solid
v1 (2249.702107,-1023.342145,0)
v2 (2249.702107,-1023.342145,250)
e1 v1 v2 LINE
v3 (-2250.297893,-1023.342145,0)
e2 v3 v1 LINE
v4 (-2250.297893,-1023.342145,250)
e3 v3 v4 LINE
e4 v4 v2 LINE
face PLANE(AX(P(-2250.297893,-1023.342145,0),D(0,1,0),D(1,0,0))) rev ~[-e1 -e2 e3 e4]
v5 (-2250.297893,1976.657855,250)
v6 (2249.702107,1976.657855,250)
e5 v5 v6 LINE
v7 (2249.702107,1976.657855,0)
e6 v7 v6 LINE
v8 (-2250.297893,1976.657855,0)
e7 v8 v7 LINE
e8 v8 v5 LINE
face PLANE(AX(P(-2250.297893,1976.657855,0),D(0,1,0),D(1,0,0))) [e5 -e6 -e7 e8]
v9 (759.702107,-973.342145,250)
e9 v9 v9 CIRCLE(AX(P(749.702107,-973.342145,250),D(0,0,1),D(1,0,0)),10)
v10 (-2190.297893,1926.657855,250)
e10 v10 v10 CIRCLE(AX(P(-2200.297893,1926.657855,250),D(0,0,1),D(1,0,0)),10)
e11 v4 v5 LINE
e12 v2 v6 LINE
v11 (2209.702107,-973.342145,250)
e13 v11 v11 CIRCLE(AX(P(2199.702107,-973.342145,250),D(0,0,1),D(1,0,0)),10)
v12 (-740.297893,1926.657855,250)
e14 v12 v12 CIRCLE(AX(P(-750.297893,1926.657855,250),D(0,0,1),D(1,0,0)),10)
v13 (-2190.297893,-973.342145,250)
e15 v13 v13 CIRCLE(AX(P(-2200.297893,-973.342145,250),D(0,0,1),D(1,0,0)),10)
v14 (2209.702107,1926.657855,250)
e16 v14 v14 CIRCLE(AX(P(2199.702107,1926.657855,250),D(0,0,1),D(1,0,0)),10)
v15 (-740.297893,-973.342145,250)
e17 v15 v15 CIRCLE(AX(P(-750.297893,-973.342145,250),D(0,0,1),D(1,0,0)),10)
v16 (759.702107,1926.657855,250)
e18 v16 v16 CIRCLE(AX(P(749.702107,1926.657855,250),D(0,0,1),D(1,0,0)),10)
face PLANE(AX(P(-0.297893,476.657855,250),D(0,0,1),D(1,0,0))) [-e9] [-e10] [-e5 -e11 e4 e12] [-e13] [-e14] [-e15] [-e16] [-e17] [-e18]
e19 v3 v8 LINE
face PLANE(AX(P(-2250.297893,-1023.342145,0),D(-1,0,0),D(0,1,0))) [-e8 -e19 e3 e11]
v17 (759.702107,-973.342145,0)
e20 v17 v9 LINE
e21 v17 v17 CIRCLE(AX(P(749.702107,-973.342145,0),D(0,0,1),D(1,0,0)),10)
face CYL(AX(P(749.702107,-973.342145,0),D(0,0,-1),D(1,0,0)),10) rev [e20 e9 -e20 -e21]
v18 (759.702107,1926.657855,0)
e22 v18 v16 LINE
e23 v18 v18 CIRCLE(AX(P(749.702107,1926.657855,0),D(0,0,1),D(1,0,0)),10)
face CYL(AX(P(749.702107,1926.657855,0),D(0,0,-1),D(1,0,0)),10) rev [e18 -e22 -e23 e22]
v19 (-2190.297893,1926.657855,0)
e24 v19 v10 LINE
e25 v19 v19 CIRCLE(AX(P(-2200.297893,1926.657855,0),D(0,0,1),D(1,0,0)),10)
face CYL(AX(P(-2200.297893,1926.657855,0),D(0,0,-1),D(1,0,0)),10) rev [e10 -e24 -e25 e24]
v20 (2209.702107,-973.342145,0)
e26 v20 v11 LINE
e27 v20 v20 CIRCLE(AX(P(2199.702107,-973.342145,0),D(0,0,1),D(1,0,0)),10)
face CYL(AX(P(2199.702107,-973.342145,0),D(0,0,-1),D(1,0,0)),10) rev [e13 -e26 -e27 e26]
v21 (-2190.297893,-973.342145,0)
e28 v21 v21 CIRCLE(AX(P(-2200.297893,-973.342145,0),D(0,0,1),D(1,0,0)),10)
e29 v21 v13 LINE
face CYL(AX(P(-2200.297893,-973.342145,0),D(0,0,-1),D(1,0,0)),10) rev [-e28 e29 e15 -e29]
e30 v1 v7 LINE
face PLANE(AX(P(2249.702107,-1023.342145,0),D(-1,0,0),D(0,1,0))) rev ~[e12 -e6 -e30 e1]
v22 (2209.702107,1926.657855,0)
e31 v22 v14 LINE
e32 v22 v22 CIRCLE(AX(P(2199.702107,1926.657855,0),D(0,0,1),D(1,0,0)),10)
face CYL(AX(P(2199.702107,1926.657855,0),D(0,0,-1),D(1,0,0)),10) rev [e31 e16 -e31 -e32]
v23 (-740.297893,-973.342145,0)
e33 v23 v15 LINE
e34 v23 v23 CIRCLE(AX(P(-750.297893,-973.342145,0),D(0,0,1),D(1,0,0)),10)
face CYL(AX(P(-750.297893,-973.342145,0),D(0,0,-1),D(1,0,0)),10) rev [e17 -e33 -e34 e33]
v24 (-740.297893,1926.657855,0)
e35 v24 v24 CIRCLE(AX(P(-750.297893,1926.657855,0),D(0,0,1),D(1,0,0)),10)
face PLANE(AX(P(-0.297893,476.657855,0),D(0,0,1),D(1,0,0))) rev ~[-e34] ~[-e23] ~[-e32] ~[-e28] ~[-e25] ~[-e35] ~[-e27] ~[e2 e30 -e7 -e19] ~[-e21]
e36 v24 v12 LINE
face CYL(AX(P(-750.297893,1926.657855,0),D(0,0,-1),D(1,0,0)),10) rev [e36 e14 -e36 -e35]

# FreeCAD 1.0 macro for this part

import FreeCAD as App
import Part
import Sketcher

V = App.Vector
Q = App.Units.Quantity


def add_polygon(sketch, points):
    """Adds a closed chain of lines whose ends are joined by coincident constraints."""
    first, n = sketch.GeometryCount, len(points)
    for a, b in zip(points, points[1:] + points[:1]):
        sketch.addGeometry(Part.LineSegment(App.Vector(*a, 0), App.Vector(*b, 0)), False)
    for i in range(n):
        sketch.addConstraint(Sketcher.Constraint("Coincident", first + i, 2, first + (i + 1) % n, 1))

doc = App.newDocument("Part")
body = doc.addObject("PartDesign::Body", "Body")

sketch1 = doc.addObject("Sketcher::SketchObject", "Sketch")
body.addObject(sketch1)
sketch1.AttachmentSupport = (doc.XY_Plane, [""])
sketch1.MapMode = "FlatFace"
add_polygon(sketch1, [(-2250, 1977), (-2250, -1023), (2250, -1023), (2250, 1977)])
sketch1.addGeometry(Part.Circle(V(-2200, -973, 0), V(0, 0, 1), 10), False)
sketch1.addGeometry(Part.Circle(V(-750, -973, 0), V(0, 0, 1), 10), False)
sketch1.addGeometry(Part.Circle(V(750, -973, 0), V(0, 0, 1), 10), False)
sketch1.addGeometry(Part.Circle(V(2200, -973, 0), V(0, 0, 1), 10), False)
sketch1.addGeometry(Part.Circle(V(-2200, 1927, 0), V(0, 0, 1), 10), False)
sketch1.addGeometry(Part.Circle(V(-750, 1927, 0), V(0, 0, 1), 10), False)
sketch1.addGeometry(Part.Circle(V(750, 1927, 0), V(0, 0, 1), 10), False)
sketch1.addGeometry(Part.Circle(V(2200, 1927, 0), V(0, 0, 1), 10), False)
sketch1.addConstraint(Sketcher.Constraint("Vertical", 0))
sketch1.addConstraint(Sketcher.Constraint("Horizontal", 1))
sketch1.addConstraint(Sketcher.Constraint("Vertical", 2))
sketch1.addConstraint(Sketcher.Constraint("Horizontal", 3))
sketch1.addConstraint(Sketcher.Constraint("Equal", 4, 5))
sketch1.addConstraint(Sketcher.Constraint("Equal", 5, 6))
sketch1.addConstraint(Sketcher.Constraint("Equal", 6, 7))
sketch1.addConstraint(Sketcher.Constraint("Equal", 7, 8))
sketch1.addConstraint(Sketcher.Constraint("Equal", 8, 9))
sketch1.addConstraint(Sketcher.Constraint("Equal", 9, 10))
sketch1.addConstraint(Sketcher.Constraint("Equal", 10, 11))
sketch1.addConstraint(Sketcher.Constraint("Horizontal", 4, 3, 5, 3))
sketch1.addConstraint(Sketcher.Constraint("Horizontal", 5, 3, 6, 3))
sketch1.addConstraint(Sketcher.Constraint("Horizontal", 6, 3, 7, 3))
sketch1.addConstraint(Sketcher.Constraint("Horizontal", 8, 3, 9, 3))
sketch1.addConstraint(Sketcher.Constraint("Horizontal", 9, 3, 10, 3))
sketch1.addConstraint(Sketcher.Constraint("Horizontal", 10, 3, 11, 3))
sketch1.addConstraint(Sketcher.Constraint("Vertical", 4, 3, 8, 3))
sketch1.addConstraint(Sketcher.Constraint("Vertical", 5, 3, 9, 3))
sketch1.addConstraint(Sketcher.Constraint("Vertical", 6, 3, 10, 3))
sketch1.addConstraint(Sketcher.Constraint("Vertical", 7, 3, 11, 3))
sketch1.addConstraint(Sketcher.Constraint("Diameter", 4, Q("20 mm")))
sketch1.addConstraint(Sketcher.Constraint("DistanceX", 1, 1, 1, 2, Q("4500 mm")))
sketch1.addConstraint(Sketcher.Constraint("DistanceY", 0, 2, 0, 1, Q("3000 mm")))
sketch1.addConstraint(Sketcher.Constraint("DistanceX", 4, 3, 5, 3, Q("1450 mm")))
sketch1.addConstraint(Sketcher.Constraint("DistanceX", 5, 3, 6, 3, Q("1500 mm")))
sketch1.addConstraint(Sketcher.Constraint("DistanceX", 6, 3, 7, 3, Q("1450 mm")))
sketch1.addConstraint(Sketcher.Constraint("DistanceY", 4, 3, 8, 3, Q("2900 mm")))
sketch1.addConstraint(Sketcher.Constraint("DistanceX", 0, 2, 4, 3, Q("50 mm")))
sketch1.addConstraint(Sketcher.Constraint("DistanceY", 0, 2, 4, 3, Q("50 mm")))
sketch1.addConstraint(Sketcher.Constraint("DistanceX", 4, 3, -1, 1, Q("2200.297893 mm")))
sketch1.addConstraint(Sketcher.Constraint("DistanceY", 4, 3, -1, 1, Q("973.342145 mm")))
pad1 = doc.addObject("PartDesign::Pad", "Pad")
body.addObject(pad1)
pad1.Profile = sketch1
pad1.Length = 250

doc.recompute()
